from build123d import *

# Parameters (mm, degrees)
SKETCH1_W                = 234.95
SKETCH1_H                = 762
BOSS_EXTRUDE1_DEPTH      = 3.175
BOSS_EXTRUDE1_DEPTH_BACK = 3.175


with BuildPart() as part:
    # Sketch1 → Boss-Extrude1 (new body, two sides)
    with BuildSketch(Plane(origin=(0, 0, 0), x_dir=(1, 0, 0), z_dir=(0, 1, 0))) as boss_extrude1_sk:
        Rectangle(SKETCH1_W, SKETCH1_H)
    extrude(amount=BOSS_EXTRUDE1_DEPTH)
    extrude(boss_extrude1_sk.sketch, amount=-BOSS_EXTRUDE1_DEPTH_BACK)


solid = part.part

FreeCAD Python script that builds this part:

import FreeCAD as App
import Part
import Sketcher
Q = App.Units.Quantity

doc = App.newDocument("Part")
body = doc.addObject("PartDesign::Body", "Body")

sketch1 = doc.addObject("Sketcher::SketchObject", "Sketch")
body.addObject(sketch1)
sketch1.AttachmentSupport = (doc.XZ_Plane, [""])
sketch1.MapMode = "FlatFace"
sketch1.addGeometry([
    Part.LineSegment(App.Vector(-117, -381, 0), App.Vector(-117, 381, 0)),
    Part.LineSegment(App.Vector(-117, 381, 0), App.Vector(117, 381, 0)),
    Part.LineSegment(App.Vector(117, 381, 0), App.Vector(117, -381, 0)),
    Part.LineSegment(App.Vector(117, -381, 0), App.Vector(-117, -381, 0)),
], False)
sketch1.addConstraint([
    Sketcher.Constraint("Coincident", 0, 2, 1, 1),
    Sketcher.Constraint("Coincident", 1, 2, 2, 1),
    Sketcher.Constraint("Coincident", 2, 2, 3, 1),
    Sketcher.Constraint("Coincident", 3, 2, 0, 1),
    Sketcher.Constraint("Vertical", 0),
    Sketcher.Constraint("Horizontal", 1),
    Sketcher.Constraint("Vertical", 2),
    Sketcher.Constraint("Horizontal", 3),
    Sketcher.Constraint("Symmetric", 0, 2, 2, 2, -1, 1),
    Sketcher.Constraint("DistanceY", 0, 1, 0, 2, Q("30 in")),
    Sketcher.Constraint("DistanceX", 1, 1, 1, 2, Q("9.25 in")),
])
pad1 = doc.addObject("PartDesign::Pad", "Pad")
body.addObject(pad1)
pad1.Profile = sketch1
pad1.Type = "TwoLengths"
pad1.Length = Q("0.125 in")
pad1.Length2 = Q("0.125 in")
pad1.Reversed = True

doc.recompute()
